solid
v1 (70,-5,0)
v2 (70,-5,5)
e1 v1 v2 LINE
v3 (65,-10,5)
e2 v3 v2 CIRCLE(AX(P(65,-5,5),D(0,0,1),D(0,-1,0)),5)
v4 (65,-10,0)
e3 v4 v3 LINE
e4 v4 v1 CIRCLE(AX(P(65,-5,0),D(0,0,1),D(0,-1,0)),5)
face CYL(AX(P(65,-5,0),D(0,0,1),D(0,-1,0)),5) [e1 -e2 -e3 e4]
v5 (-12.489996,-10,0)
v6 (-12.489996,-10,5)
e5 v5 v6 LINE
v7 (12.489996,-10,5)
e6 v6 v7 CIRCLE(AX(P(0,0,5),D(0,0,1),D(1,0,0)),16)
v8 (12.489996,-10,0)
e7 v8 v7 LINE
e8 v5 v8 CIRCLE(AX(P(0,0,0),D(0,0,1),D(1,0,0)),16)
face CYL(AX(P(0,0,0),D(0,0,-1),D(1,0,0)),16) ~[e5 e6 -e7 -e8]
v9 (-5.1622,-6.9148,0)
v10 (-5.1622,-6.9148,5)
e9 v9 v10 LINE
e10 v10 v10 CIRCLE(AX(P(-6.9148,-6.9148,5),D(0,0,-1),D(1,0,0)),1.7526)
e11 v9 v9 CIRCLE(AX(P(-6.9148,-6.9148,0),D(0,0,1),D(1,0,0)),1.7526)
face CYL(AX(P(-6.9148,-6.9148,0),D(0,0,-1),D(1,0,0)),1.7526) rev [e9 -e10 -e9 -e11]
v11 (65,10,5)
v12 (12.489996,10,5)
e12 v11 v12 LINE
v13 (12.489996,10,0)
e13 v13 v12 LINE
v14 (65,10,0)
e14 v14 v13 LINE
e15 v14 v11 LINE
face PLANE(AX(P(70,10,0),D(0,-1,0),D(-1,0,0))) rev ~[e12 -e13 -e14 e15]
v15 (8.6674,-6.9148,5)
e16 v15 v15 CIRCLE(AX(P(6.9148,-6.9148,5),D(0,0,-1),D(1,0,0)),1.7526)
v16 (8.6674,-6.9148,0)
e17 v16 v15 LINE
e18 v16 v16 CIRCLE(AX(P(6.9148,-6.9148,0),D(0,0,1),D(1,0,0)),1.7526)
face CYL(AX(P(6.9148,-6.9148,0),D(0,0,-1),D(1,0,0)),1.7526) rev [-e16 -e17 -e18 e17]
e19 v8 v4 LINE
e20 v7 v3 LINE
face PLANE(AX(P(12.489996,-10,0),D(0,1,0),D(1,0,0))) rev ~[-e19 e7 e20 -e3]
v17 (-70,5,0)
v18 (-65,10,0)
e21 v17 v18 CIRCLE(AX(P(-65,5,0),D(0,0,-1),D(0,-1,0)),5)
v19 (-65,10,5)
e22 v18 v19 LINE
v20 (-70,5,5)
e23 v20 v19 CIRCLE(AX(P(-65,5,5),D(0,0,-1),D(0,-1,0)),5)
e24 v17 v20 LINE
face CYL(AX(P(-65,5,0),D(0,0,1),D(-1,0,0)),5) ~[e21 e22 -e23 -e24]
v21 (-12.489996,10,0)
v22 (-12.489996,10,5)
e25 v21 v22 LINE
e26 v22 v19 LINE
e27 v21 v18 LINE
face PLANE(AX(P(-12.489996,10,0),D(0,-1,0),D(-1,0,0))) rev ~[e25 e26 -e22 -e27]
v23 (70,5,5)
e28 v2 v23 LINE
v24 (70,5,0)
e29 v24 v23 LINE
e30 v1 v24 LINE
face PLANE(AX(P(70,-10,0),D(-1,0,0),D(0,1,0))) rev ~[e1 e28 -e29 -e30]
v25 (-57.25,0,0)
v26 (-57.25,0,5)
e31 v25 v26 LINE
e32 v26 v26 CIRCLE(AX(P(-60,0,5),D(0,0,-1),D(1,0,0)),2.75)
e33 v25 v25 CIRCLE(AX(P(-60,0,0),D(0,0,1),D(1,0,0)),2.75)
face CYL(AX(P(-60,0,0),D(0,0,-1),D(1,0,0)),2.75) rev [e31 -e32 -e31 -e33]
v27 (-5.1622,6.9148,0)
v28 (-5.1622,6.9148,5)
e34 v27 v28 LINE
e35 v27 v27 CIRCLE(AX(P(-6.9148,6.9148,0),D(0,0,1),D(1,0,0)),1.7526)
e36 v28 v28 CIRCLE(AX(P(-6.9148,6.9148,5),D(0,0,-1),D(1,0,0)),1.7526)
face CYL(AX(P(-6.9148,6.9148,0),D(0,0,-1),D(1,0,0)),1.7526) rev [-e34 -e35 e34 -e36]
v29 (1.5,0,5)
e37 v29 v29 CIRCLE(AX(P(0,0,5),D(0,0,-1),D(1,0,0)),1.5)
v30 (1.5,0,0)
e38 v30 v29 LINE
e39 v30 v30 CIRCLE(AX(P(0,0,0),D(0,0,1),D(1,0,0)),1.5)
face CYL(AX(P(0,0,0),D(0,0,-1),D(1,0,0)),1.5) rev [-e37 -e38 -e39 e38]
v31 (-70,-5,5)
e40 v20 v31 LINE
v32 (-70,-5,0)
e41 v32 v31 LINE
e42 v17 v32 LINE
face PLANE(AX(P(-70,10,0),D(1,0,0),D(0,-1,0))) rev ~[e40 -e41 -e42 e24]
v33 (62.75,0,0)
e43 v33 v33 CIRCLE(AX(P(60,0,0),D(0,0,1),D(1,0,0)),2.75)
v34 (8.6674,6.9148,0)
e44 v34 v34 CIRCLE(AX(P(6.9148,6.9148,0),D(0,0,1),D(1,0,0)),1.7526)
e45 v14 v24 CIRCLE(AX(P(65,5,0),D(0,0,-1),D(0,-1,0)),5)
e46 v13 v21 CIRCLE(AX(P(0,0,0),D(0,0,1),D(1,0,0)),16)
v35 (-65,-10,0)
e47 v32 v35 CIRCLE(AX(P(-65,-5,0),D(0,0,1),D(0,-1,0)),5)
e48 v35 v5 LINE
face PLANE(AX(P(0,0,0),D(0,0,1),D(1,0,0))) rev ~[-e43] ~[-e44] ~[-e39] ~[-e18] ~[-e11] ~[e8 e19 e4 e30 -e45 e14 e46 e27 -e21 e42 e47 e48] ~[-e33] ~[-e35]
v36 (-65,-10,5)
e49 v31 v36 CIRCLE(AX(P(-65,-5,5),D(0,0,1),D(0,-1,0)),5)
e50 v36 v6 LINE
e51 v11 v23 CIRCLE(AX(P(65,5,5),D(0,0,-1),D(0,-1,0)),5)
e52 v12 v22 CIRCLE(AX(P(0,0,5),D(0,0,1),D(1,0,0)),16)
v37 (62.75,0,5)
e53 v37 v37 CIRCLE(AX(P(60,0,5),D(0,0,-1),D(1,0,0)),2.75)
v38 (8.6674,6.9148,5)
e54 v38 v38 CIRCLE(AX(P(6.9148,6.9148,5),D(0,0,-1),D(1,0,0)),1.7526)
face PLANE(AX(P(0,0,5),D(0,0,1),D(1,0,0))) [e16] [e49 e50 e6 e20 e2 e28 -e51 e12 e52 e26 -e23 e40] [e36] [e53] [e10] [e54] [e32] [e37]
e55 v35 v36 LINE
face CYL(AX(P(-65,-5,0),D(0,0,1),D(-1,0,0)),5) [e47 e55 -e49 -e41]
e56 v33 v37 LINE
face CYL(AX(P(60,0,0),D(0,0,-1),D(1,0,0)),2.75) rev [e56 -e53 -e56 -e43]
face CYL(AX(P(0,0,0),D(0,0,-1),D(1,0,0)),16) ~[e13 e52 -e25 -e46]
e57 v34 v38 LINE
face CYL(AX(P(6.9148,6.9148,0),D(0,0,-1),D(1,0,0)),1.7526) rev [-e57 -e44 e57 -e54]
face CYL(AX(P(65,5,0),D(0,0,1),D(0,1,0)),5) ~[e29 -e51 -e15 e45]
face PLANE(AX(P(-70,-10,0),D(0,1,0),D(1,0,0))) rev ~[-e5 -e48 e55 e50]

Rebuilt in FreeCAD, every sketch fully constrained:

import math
import FreeCAD as App
import Part
import Sketcher

V = App.Vector


def edges_at(feature, points):
    """Names of the edges that pass closest to the given points."""
    edges = feature.Shape.Edges
    near = lambda p: min(range(len(edges)), key=lambda i: edges[i].distToShape(Part.Vertex(*p))[0])
    return sorted({f"Edge{near(p) + 1}" for p in points})

doc = App.newDocument("Part")
body = doc.addObject("PartDesign::Body", "Body")

# Sketch on XY plane
sketch1 = body.newObject("Sketcher::SketchObject", "Sketch")
sketch1.AttachmentSupport = (doc.getObject("XY_Plane"), [""])
sketch1.MapMode = "FlatFace"
sketch1.addGeometry(Part.LineSegment(V(-70, 10, 0), V(-70, -10, 0)), False)
sketch1.addGeometry(Part.LineSegment(V(-70, -10, 0), V(-12, -10, 0)), False)
sketch1.addGeometry(Part.ArcOfCircle(Part.Circle(V(0, 0, 0), V(0, 0, 1), 16), math.radians(-141), math.radians(-39)), False)
sketch1.addGeometry(Part.LineSegment(V(12, -10, 0), V(70, -10, 0)), False)
sketch1.addGeometry(Part.LineSegment(V(70, -10, 0), V(70, 10, 0)), False)
sketch1.addGeometry(Part.LineSegment(V(70, 10, 0), V(12, 10, 0)), False)
sketch1.addGeometry(Part.ArcOfCircle(Part.Circle(V(0, 0, 0), V(0, 0, 1), 16), math.radians(39), math.radians(141)), False)
sketch1.addGeometry(Part.LineSegment(V(-12, 10, 0), V(-70, 10, 0)), False)
sketch1.addConstraint(Sketcher.Constraint("Coincident", 0, 2, 1, 1))
sketch1.addConstraint(Sketcher.Constraint("Coincident", 1, 2, 2, 1))
sketch1.addConstraint(Sketcher.Constraint("Coincident", 2, 2, 3, 1))
sketch1.addConstraint(Sketcher.Constraint("Coincident", 3, 2, 4, 1))
sketch1.addConstraint(Sketcher.Constraint("Coincident", 4, 2, 5, 1))
sketch1.addConstraint(Sketcher.Constraint("Coincident", 5, 2, 6, 1))
sketch1.addConstraint(Sketcher.Constraint("Coincident", 6, 2, 7, 1))
sketch1.addConstraint(Sketcher.Constraint("Coincident", 7, 2, 0, 1))
sketch1.addConstraint(Sketcher.Constraint("Vertical", 0))
sketch1.addConstraint(Sketcher.Constraint("Horizontal", 1))
sketch1.addConstraint(Sketcher.Constraint("Horizontal", 3))
sketch1.addConstraint(Sketcher.Constraint("Vertical", 4))
sketch1.addConstraint(Sketcher.Constraint("Horizontal", 5))
sketch1.addConstraint(Sketcher.Constraint("Horizontal", 7))
sketch1.addConstraint(Sketcher.Constraint("Coincident", 2, 3, -1, 1))
sketch1.addConstraint(Sketcher.Constraint("Coincident", 6, 3, -1, 1))
sketch1.addConstraint(Sketcher.Constraint("Equal", 2, 6))
sketch1.addConstraint(Sketcher.Constraint("Symmetric", 0, 2, 4, 2, -1, 1))
sketch1.addConstraint(Sketcher.Constraint("Horizontal", 1, 2, 2, 2))
sketch1.addConstraint(Sketcher.Constraint("Horizontal", 5, 2, 6, 2))
sketch1.addConstraint(Sketcher.Constraint("Radius", 2, 16.0))
sketch1.addConstraint(Sketcher.Constraint("DistanceY", 0, 2, 0, 1, 20.0))
sketch1.addConstraint(Sketcher.Constraint("DistanceX", 0, 2, 3, 2, 140.0))
pad1 = body.newObject("PartDesign::Pad", "Pad")
pad1.Profile = sketch1
pad1.Length = 5

# Sketch on XY plane
sketch2 = body.newObject("Sketcher::SketchObject", "Sketch001")
sketch2.AttachmentSupport = (doc.getObject("XY_Plane"), [""])
sketch2.MapMode = "FlatFace"
sketch2.addGeometry(Part.Circle(V(-60, 0, 0), V(0, 0, 1), 2.8), False)
sketch2.addGeometry(Part.Circle(V(60, 0, 0), V(0, 0, 1), 2.8), False)
sketch2.addGeometry(Part.Circle(V(0, 0, 0), V(0, 0, 1), 1.5), False)
sketch2.addGeometry(Part.Circle(V(-6.9, 6.9, 0), V(0, 0, 1), 1.8), False)
sketch2.addGeometry(Part.Circle(V(-6.9, -6.9, 0), V(0, 0, 1), 1.8), False)
sketch2.addGeometry(Part.Circle(V(6.9, -6.9, 0), V(0, 0, 1), 1.8), False)
sketch2.addGeometry(Part.Circle(V(6.9, 6.9, 0), V(0, 0, 1), 1.8), False)
sketch2.addConstraint(Sketcher.Constraint("Coincident", 2, 3, -1, 1))
sketch2.addConstraint(Sketcher.Constraint("Equal", 0, 1))
sketch2.addConstraint(Sketcher.Constraint("Equal", 3, 4))
sketch2.addConstraint(Sketcher.Constraint("Equal", 4, 5))
sketch2.addConstraint(Sketcher.Constraint("Equal", 5, 6))
sketch2.addConstraint(Sketcher.Constraint("Symmetric", 0, 3, 1, 3, -1, 1))
sketch2.addConstraint(Sketcher.Constraint("Symmetric", 3, 3, 5, 3, -1, 1))
sketch2.addConstraint(Sketcher.Constraint("Symmetric", 4, 3, 6, 3, -1, 1))
sketch2.addConstraint(Sketcher.Constraint("Symmetric", 4, 3, 5, 3, -2))
sketch2.addConstraint(Sketcher.Constraint("PointOnObject", 0, 3, -1))
sketch2.addConstraint(Sketcher.Constraint("Diameter", 2, 3.0))
sketch2.addConstraint(Sketcher.Constraint("Diameter", 0, 5.5))
sketch2.addConstraint(Sketcher.Constraint("Diameter", 3, 3.5052))
sketch2.addConstraint(Sketcher.Constraint("DistanceX", 0, 3, -1, 1, 60.0))
sketch2.addConstraint(Sketcher.Constraint("DistanceX", 3, 3, -1, 1, 6.9148))
sketch2.addConstraint(Sketcher.Constraint("DistanceY", -1, 1, 3, 3, 6.9148))
pocket1 = body.newObject("PartDesign::Pocket", "Pocket")
pocket1.Profile = sketch2
pocket1.Type = "ThroughAll"
pocket1.Reversed = True
doc.recompute()

fillet = body.newObject("PartDesign::Fillet", "Fillet")
fillet.Base = (pocket1, edges_at(pocket1, [
    (70, -10, 2.5),
    (70, 10, 2.5),
    (-70, -10, 2.5),
    (-70, 10, 2.5),
]))
fillet.Radius = 5

doc.recompute()
